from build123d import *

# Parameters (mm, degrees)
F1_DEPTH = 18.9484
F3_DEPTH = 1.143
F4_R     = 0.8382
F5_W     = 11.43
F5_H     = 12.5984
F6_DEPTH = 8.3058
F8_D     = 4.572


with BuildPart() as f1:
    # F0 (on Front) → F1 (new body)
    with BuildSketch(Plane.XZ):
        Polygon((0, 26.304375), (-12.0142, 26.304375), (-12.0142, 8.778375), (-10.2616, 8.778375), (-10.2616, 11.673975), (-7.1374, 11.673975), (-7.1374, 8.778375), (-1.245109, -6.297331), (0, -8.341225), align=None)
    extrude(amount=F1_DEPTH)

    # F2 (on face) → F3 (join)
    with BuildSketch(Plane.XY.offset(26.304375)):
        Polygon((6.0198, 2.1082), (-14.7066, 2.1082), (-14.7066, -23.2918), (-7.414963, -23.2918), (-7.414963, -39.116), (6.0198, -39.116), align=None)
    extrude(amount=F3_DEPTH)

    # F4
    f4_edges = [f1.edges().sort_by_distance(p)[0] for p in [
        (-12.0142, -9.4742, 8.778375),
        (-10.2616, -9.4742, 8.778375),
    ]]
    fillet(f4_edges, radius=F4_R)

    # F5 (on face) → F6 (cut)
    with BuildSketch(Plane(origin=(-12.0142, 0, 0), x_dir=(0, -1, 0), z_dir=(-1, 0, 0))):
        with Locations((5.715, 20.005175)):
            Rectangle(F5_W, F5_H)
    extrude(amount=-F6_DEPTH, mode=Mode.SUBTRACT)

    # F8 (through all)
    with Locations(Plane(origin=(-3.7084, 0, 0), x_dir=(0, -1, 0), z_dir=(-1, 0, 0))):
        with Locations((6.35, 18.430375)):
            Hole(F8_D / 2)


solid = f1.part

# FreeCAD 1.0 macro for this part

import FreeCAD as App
import Part
import Sketcher
from FreeCAD import Vector
Q = App.Units.Quantity


def edges_at(feature, points):
    """Names of the edges that pass closest to the given points."""
    edges = feature.Shape.Edges
    near = lambda p: min(range(len(edges)), key=lambda i: edges[i].distToShape(Part.Vertex(*p))[0])
    return sorted({f"Edge{near(p) + 1}" for p in points})


def add_polygon(sketch, points):
    """Adds a closed chain of lines whose ends are joined by coincident constraints."""
    first, n = sketch.GeometryCount, len(points)
    for a, b in zip(points, points[1:] + points[:1]):
        sketch.addGeometry(Part.LineSegment(App.Vector(*a, 0), App.Vector(*b, 0)), False)
    for i in range(n):
        sketch.addConstraint(Sketcher.Constraint("Coincident", first + i, 2, first + (i + 1) % n, 1))

doc = App.newDocument("Part")
params = doc.addObject("Spreadsheet::Sheet", "Params")
for row, (alias, value) in enumerate([
    ("sketch1_height", "0.69 in"),
    ("sketch1_width", "0.473 in"),
    ("sketch1_width2", "0.069 in"),
    ("sketch1_width3", "0.123 in"),
    ("sketch1_height2", "0.114 in"),
    ("pad1_length", "0.746 in"),
    ("sketch2_height", "1 in"),
    ("sketch2_width", "0.816 in"),
    ("sketch2_height2", "0.623 in"),
    ("pad2_length", "0.045 in"),
    ("fillet_radius", "0.033 in"),
    ("sketch3_width", "0.45 in"),
    ("sketch3_height", "0.496 in"),
    ("pocket1_length", "0.327 in"),
    ("sketch4_diameter", "0.18 in"),
    ("hole_diameter", "0.18 in"),
], start=1):
    params.set(f"A{row}", alias)
    params.set(f"B{row}", "=" + value)
    params.setAlias(f"B{row}", alias)

body = doc.addObject("PartDesign::Body", "Body")

sketch1 = body.newObject("Sketcher::SketchObject", "Sketch")
sketch1.AttachmentSupport = (doc.getObject("XZ_Plane"), [""])
sketch1.MapMode = "FlatFace"
add_polygon(sketch1, [(0, 26.3), (-12, 26.3), (-12, 8.8), (-10.3, 8.8), (-10.3, 11.7), (-7.1, 11.7), (-7.1, 8.8), (-1.2, -6.3), (0, -8.3)])
sketch1.addConstraint(Sketcher.Constraint("Horizontal", 0))
sketch1.addConstraint(Sketcher.Constraint("Vertical", 1))
sketch1.addConstraint(Sketcher.Constraint("Horizontal", 2))
sketch1.addConstraint(Sketcher.Constraint("Vertical", 3))
sketch1.addConstraint(Sketcher.Constraint("Horizontal", 4))
sketch1.addConstraint(Sketcher.Constraint("Vertical", 5))
sketch1.addConstraint(Sketcher.Constraint("Vertical", 8))
sketch1.addConstraint(Sketcher.Constraint("PointOnObject", 7, 2, -2))
sketch1.addConstraint(Sketcher.Constraint("Horizontal", 2, 2, 5, 2))
sketch1.addConstraint(Sketcher.Constraint("DistanceY", 1, 2, 1, 1, Q("0.69 in")))
sketch1.addConstraint(Sketcher.Constraint("DistanceX", 0, 2, 0, 1, Q("0.473 in")))
sketch1.addConstraint(Sketcher.Constraint("DistanceX", 2, 1, 2, 2, Q("0.069 in")))
sketch1.addConstraint(Sketcher.Constraint("DistanceX", 4, 1, 4, 2, Q("0.123 in")))
sketch1.addConstraint(Sketcher.Constraint("DistanceY", 3, 1, 3, 2, Q("0.114 in")))
sketch1.addConstraint(Sketcher.Constraint("DistanceY", 8, 1, 8, 2, Q("1.364 in")))
sketch1.addConstraint(Sketcher.Constraint("Distance", 6, 16.186291))
sketch1.addConstraint(Sketcher.Constraint("DistanceX", 6, 2, -1, 1, 1.245109))
sketch1.addConstraint(Sketcher.Constraint("DistanceY", 6, 2, -1, 1, 6.297331))
sketch1.setExpression("Constraints[18]", "Params.sketch1_height")
sketch1.setExpression("Constraints[19]", "Params.sketch1_width")
sketch1.setExpression("Constraints[20]", "Params.sketch1_width2")
sketch1.setExpression("Constraints[21]", "Params.sketch1_width3")
sketch1.setExpression("Constraints[22]", "Params.sketch1_height2")
pad1 = body.newObject("PartDesign::Pad", "Pad")
pad1.Profile = sketch1
pad1.setExpression("Length", "Params.pad1_length")

sketch2 = body.newObject("Sketcher::SketchObject", "Sketch001")
sketch2.AttachmentSupport = (doc.getObject("XY_Plane"), [""])
sketch2.MapMode = "FlatFace"
sketch2.AttachmentOffset = App.Placement(Vector(0, 0, 26.304375), App.Rotation())
add_polygon(sketch2, [(6, 2), (-15, 2), (-15, -23), (-7, -23), (-7, -39), (6, -39)])
sketch2.addConstraint(Sketcher.Constraint("Horizontal", 0))
sketch2.addConstraint(Sketcher.Constraint("Vertical", 1))
sketch2.addConstraint(Sketcher.Constraint("Horizontal", 2))
sketch2.addConstraint(Sketcher.Constraint("Vertical", 3))
sketch2.addConstraint(Sketcher.Constraint("Horizontal", 4))
sketch2.addConstraint(Sketcher.Constraint("Vertical", 5))
sketch2.addConstraint(Sketcher.Constraint("DistanceY", 1, 2, 1, 1, Q("1 in")))
sketch2.addConstraint(Sketcher.Constraint("DistanceX", 0, 2, 0, 1, Q("0.816 in")))
sketch2.addConstraint(Sketcher.Constraint("DistanceY", 3, 2, 3, 1, Q("0.623 in")))
sketch2.addConstraint(Sketcher.Constraint("DistanceY", 3, 2, -1, 1, Q("1.54 in")))
sketch2.addConstraint(Sketcher.Constraint("DistanceX", 0, 2, -1, 1, Q("0.579 in")))
sketch2.addConstraint(Sketcher.Constraint("DistanceX", 2, 1, 2, 2, 7.291637))
sketch2.setExpression("Constraints[12]", "Params.sketch2_height")
sketch2.setExpression("Constraints[13]", "Params.sketch2_width")
sketch2.setExpression("Constraints[14]", "Params.sketch2_height2")
pad2 = body.newObject("PartDesign::Pad", "Pad001")
pad2.Profile = sketch2
pad2.setExpression("Length", "Params.pad2_length")
doc.recompute()

fillet = body.newObject("PartDesign::Fillet", "Fillet")
fillet.Base = (pad2, edges_at(pad2, [(-12.014, -9.474, 8.778), (-10.262, -9.474, 8.778)]))
fillet.setExpression("Radius", "Params.fillet_radius")

sketch3 = body.newObject("Sketcher::SketchObject", "Sketch002")
sketch3.AttachmentSupport = (doc.getObject("YZ_Plane"), [""])
sketch3.MapMode = "FlatFace"
sketch3.AttachmentOffset = App.Placement(Vector(0, 0, -0.473 * 25.4), App.Rotation())
add_polygon(sketch3, [(0, 26), (0, 14), (-11, 14), (-11, 26)])
sketch3.addConstraint(Sketcher.Constraint("Vertical", 0))
sketch3.addConstraint(Sketcher.Constraint("Horizontal", 1))
sketch3.addConstraint(Sketcher.Constraint("Vertical", 2))
sketch3.addConstraint(Sketcher.Constraint("Horizontal", 3))
sketch3.addConstraint(Sketcher.Constraint("PointOnObject", 0, 2, -2))
sketch3.addConstraint(Sketcher.Constraint("DistanceX", 1, 2, 1, 1, Q("0.45 in")))
sketch3.addConstraint(Sketcher.Constraint("DistanceY", 0, 2, 0, 1, Q("0.496 in")))
sketch3.addConstraint(Sketcher.Constraint("DistanceY", -1, 1, 0, 2, 13.705975))
sketch3.setExpression("Constraints[9]", "Params.sketch3_width")
sketch3.setExpression("Constraints[10]", "Params.sketch3_height")
pocket1 = body.newObject("PartDesign::Pocket", "Pocket")
pocket1.Profile = sketch3
pocket1.setExpression("Length", "Params.pocket1_length")
pocket1.Reversed = True

sketch4 = body.newObject("Sketcher::SketchObject", "Sketch003")
sketch4.AttachmentSupport = (doc.getObject("YZ_Plane"), [""])
sketch4.MapMode = "FlatFace"
sketch4.AttachmentOffset = App.Placement(Vector(0, 0, -0.146 * 25.4), App.Rotation())
sketch4.addGeometry(Part.Circle(Vector(-6.3, 18.4, 0), Vector(0, 0, 1), 2.3), False)
sketch4.addConstraint(Sketcher.Constraint("Diameter", 0, Q("0.18 in")))
sketch4.addConstraint(Sketcher.Constraint("DistanceX", 0, 3, -1, 1, Q("0.25 in")))
sketch4.addConstraint(Sketcher.Constraint("DistanceY", -1, 1, 0, 3, 18.430375))
sketch4.setExpression("Constraints[0]", "Params.sketch4_diameter")
doc.recompute()
hole = body.newObject("PartDesign::Hole", "Hole")
hole.Profile = sketch4
hole.ThreadType = "None"
hole.setExpression("Diameter", "Params.hole_diameter")
hole.DepthType = "ThroughAll"
hole.Reversed = True

doc.recompute()
